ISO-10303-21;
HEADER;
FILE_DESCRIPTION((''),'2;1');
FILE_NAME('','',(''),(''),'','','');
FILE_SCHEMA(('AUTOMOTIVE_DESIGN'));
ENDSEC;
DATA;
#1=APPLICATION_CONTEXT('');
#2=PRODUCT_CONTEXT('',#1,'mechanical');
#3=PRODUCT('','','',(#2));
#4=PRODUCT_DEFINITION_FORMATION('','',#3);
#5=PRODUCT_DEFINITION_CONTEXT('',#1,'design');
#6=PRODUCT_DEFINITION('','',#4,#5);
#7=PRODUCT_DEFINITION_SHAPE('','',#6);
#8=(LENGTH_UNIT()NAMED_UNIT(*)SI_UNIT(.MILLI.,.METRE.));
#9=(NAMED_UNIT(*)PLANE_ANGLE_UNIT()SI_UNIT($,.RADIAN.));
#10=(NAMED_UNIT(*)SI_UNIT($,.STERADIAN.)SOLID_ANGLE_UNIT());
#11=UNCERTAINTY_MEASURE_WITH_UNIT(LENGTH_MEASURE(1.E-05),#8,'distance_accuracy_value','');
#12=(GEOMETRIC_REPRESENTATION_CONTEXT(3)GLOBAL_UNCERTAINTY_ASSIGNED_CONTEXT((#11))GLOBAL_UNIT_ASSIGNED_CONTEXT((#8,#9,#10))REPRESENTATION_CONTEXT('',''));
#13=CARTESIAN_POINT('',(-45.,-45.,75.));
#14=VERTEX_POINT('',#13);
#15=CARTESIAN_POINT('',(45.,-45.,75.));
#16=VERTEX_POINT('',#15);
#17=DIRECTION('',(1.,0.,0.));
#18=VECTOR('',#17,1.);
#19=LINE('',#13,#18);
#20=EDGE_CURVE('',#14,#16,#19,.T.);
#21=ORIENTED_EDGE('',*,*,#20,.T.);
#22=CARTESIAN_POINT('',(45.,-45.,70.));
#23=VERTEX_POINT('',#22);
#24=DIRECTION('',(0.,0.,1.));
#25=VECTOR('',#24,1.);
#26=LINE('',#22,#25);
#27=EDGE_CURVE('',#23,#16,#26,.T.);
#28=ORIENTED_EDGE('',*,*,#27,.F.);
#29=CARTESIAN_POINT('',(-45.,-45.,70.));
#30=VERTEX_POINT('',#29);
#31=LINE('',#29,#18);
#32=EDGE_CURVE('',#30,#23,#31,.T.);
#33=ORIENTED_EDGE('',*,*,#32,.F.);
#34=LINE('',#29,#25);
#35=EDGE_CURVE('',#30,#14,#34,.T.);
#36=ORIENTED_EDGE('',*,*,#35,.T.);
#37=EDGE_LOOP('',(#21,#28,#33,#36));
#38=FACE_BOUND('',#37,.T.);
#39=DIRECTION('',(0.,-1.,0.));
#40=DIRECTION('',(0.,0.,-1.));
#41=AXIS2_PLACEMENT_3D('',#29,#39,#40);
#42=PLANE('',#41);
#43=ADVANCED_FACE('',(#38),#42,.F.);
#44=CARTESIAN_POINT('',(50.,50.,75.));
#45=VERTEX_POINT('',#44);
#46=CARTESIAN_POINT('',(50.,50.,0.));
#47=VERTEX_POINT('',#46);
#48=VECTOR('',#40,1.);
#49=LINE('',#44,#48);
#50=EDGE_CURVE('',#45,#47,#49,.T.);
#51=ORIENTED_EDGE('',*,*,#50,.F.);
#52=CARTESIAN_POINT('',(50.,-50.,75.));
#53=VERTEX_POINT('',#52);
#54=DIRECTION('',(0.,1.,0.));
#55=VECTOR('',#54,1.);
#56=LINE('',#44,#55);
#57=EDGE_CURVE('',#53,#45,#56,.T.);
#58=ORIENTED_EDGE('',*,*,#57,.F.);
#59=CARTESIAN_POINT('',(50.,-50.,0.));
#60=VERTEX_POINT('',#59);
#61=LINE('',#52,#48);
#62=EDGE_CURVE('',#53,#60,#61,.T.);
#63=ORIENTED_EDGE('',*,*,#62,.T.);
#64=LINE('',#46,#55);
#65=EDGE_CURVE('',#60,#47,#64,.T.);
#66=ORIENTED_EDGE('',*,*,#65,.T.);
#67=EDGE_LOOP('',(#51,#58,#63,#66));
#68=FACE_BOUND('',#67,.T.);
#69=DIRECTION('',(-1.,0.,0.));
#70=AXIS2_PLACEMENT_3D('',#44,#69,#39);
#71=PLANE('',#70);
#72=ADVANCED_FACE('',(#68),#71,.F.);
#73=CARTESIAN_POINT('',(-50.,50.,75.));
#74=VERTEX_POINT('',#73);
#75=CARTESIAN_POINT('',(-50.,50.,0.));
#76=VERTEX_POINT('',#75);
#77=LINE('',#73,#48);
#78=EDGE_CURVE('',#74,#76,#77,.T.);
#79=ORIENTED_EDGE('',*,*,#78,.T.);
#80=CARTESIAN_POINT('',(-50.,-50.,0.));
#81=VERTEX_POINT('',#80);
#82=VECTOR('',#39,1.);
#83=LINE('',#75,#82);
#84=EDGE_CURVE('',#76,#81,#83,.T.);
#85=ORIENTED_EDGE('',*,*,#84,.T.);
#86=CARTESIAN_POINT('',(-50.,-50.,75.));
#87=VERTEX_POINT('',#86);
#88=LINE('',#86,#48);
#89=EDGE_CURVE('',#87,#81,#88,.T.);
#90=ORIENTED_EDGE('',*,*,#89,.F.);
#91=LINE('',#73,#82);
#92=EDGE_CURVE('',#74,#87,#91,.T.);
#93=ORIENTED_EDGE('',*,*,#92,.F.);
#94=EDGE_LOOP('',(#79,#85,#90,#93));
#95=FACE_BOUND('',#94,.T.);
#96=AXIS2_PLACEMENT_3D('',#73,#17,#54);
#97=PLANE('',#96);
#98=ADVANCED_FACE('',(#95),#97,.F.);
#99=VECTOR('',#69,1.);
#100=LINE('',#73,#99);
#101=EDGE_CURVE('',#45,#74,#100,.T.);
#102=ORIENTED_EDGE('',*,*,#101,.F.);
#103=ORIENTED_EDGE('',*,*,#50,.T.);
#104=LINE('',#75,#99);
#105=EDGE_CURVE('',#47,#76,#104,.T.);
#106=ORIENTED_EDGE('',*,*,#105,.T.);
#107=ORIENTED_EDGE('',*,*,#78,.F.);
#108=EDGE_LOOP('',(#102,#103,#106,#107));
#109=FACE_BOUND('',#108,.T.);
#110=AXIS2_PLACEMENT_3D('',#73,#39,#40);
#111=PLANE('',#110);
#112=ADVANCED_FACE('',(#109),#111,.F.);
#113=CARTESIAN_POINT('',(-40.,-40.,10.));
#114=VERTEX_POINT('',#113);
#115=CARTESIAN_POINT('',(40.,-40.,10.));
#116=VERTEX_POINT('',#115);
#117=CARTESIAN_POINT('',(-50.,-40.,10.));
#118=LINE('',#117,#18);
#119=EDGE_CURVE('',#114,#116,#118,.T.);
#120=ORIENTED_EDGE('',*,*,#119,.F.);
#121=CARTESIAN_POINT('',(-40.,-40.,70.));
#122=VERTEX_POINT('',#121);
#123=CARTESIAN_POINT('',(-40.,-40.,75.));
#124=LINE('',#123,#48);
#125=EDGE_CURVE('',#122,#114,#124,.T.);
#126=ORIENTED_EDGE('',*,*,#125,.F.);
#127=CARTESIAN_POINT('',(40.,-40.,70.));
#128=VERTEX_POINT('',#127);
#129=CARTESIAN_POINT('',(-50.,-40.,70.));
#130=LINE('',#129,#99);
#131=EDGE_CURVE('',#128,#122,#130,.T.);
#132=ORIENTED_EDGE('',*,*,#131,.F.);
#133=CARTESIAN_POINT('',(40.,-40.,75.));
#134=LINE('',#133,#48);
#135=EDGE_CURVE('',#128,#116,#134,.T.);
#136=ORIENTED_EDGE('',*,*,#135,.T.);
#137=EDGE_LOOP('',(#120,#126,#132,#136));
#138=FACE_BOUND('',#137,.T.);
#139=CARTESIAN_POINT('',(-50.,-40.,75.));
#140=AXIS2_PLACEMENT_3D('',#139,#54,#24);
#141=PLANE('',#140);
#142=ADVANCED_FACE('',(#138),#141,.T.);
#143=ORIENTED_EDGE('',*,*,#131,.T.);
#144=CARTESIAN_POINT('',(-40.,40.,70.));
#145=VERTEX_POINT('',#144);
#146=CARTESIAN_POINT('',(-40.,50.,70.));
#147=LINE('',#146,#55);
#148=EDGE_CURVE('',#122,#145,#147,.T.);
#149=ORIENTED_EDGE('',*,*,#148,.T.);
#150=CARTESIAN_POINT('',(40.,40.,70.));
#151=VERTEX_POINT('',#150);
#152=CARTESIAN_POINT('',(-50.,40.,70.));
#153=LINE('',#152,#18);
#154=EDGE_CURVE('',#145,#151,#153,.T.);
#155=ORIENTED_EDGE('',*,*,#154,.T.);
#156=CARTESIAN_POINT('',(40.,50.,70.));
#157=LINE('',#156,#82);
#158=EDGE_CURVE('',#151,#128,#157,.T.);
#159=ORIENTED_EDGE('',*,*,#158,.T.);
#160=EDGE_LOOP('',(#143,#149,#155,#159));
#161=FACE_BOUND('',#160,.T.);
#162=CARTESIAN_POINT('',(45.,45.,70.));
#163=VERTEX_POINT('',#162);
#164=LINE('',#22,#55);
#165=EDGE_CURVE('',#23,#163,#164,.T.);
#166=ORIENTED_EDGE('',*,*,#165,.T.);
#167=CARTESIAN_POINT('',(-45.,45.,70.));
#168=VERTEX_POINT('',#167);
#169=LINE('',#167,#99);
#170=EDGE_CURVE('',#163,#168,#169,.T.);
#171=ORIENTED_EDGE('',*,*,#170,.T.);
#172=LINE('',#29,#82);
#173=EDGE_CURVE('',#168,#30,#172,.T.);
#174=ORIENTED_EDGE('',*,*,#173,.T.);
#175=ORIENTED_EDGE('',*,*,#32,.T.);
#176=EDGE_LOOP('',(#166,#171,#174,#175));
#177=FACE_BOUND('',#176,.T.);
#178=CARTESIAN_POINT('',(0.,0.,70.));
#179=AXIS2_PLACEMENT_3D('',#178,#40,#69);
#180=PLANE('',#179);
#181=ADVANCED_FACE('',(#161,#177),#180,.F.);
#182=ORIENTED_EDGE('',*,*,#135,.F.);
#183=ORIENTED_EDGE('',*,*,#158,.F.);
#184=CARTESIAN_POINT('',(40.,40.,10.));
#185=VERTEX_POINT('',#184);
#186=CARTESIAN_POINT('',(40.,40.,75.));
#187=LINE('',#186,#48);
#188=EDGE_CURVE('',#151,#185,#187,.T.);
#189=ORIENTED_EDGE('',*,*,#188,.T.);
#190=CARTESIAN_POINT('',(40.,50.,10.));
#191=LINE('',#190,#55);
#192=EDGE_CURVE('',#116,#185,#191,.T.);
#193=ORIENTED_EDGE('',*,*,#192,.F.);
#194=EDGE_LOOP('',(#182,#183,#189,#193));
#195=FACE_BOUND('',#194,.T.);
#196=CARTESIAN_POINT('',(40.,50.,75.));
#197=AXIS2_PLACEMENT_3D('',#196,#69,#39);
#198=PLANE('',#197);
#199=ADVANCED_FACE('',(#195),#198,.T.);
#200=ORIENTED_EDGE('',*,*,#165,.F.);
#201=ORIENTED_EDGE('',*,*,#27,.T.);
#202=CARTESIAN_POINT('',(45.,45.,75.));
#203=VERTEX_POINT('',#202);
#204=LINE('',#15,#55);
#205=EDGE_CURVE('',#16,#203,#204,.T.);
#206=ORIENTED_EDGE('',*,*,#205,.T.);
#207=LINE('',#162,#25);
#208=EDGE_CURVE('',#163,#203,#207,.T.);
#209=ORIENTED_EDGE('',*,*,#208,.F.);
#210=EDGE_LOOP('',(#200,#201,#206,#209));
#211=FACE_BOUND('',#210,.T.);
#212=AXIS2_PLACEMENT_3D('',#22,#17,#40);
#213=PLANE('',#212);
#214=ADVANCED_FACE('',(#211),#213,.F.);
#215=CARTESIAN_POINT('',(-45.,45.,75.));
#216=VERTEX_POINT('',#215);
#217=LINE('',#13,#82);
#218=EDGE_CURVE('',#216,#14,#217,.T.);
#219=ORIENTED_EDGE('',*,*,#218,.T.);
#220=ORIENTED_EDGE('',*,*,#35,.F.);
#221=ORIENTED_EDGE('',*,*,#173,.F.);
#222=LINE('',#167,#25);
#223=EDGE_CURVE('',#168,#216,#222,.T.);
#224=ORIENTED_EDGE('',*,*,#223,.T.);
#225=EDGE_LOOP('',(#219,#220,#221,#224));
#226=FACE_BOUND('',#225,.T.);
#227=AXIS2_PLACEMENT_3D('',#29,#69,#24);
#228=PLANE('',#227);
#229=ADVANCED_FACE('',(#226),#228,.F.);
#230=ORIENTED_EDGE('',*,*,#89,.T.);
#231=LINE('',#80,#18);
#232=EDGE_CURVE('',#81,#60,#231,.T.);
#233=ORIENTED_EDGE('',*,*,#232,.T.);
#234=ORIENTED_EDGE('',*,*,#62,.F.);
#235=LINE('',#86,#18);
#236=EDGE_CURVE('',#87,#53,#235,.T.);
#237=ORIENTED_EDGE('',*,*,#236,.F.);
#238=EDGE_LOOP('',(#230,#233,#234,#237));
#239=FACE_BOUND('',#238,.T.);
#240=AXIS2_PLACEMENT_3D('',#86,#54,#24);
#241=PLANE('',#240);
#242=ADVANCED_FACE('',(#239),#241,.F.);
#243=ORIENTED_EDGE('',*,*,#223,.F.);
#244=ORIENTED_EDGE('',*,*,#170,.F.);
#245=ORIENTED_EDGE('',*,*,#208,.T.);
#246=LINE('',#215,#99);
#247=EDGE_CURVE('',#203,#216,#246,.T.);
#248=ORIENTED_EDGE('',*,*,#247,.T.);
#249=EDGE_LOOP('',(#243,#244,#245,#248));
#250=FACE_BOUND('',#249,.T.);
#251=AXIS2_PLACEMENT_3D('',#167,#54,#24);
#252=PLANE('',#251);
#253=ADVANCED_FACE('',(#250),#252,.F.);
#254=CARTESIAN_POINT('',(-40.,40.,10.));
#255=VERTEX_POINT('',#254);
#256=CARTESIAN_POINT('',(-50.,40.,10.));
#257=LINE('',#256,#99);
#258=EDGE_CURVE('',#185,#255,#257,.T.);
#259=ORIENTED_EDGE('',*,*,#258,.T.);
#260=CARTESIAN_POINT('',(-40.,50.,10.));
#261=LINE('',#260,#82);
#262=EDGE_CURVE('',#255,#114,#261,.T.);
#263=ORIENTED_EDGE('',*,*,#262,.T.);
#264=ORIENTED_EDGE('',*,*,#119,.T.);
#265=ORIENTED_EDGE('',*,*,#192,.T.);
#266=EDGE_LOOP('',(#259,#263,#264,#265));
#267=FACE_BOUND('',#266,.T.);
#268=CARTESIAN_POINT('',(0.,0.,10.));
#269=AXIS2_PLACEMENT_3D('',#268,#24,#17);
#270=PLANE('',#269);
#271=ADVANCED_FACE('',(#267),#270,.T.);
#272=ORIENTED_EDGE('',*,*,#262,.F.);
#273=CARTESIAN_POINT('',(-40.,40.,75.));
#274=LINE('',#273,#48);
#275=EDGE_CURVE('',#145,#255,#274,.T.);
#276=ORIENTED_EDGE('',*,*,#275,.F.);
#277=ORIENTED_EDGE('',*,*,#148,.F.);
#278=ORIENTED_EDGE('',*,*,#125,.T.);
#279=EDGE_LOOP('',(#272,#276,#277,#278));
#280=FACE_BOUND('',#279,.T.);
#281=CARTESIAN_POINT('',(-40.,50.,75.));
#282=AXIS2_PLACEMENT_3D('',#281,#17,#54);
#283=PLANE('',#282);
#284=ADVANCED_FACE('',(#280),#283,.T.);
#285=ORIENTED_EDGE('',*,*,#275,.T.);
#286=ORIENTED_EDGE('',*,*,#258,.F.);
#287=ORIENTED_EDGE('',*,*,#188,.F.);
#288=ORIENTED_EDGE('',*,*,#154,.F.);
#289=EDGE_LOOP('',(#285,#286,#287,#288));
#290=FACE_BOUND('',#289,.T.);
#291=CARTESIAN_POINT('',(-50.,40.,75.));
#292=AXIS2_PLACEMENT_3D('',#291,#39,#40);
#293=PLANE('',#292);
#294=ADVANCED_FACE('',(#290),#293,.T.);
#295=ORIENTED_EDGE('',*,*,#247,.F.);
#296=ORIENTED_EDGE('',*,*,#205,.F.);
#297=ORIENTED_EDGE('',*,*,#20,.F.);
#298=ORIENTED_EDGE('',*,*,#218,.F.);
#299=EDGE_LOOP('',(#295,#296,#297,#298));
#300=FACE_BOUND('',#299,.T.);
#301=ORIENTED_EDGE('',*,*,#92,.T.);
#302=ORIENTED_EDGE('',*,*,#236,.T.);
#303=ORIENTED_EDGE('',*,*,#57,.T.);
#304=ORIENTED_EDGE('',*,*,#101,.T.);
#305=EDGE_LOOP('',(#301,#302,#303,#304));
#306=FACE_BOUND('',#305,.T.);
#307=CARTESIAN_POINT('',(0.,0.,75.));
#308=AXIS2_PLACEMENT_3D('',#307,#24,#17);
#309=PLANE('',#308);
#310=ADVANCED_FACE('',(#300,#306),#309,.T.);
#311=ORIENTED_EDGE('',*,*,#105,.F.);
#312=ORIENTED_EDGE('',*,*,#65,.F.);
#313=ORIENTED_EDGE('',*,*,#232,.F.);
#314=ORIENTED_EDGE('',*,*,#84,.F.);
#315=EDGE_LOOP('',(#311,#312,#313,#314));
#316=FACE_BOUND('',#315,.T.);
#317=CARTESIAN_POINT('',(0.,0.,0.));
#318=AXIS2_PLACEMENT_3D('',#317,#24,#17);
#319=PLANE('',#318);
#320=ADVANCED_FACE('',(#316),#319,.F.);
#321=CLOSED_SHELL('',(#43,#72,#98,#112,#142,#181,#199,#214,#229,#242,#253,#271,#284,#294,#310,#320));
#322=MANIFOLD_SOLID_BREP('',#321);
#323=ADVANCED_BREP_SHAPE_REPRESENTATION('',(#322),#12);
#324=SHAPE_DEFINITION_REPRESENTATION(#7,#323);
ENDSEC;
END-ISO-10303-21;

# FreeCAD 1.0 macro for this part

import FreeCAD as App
import Part
import Sketcher


def faces_at(feature, points):
    """Names of the faces that lie closest to the given points."""
    faces = feature.Shape.Faces
    near = lambda p: min(range(len(faces)), key=lambda i: faces[i].distToShape(Part.Vertex(*p))[0])
    return sorted({f"Face{near(p) + 1}" for p in points})

doc = App.newDocument("Part")
body = doc.addObject("PartDesign::Body", "Body")

sketch1 = body.newObject("Sketcher::SketchObject", "Sketch")
sketch1.AttachmentSupport = (doc.getObject("XY_Plane"), [""])
sketch1.MapMode = "FlatFace"
sketch1.addGeometry([
    Part.LineSegment(App.Vector(-50, 50, 0), App.Vector(-50, -50, 0)),
    Part.LineSegment(App.Vector(-50, -50, 0), App.Vector(50, -50, 0)),
    Part.LineSegment(App.Vector(50, -50, 0), App.Vector(50, 50, 0)),
    Part.LineSegment(App.Vector(50, 50, 0), App.Vector(-50, 50, 0)),
], False)
sketch1.addConstraint([
    Sketcher.Constraint("Coincident", 0, 2, 1, 1),
    Sketcher.Constraint("Coincident", 1, 2, 2, 1),
    Sketcher.Constraint("Coincident", 2, 2, 3, 1),
    Sketcher.Constraint("Coincident", 3, 2, 0, 1),
    Sketcher.Constraint("Vertical", 0),
    Sketcher.Constraint("Horizontal", 1),
    Sketcher.Constraint("Vertical", 2),
    Sketcher.Constraint("Horizontal", 3),
    Sketcher.Constraint("Symmetric", 0, 2, 2, 2, -1, 1),
    Sketcher.Constraint("Equal", 3, 0),
    Sketcher.Constraint("DistanceX", 1, 1, 1, 2, 100.0),
])
pad1 = body.newObject("PartDesign::Pad", "Pad")
pad1.Profile = sketch1
pad1.Length = 75
doc.recompute()

thickness = body.newObject("PartDesign::Thickness", "Thickness")
thickness.Base = (pad1, faces_at(pad1, [(0, 0, 75)]))
thickness.Value = 10
thickness.Reversed = True
thickness.Join = "Intersection"

sketch2 = body.newObject("Sketcher::SketchObject", "Sketch001")
sketch2.AttachmentSupport = (doc.getObject("XY_Plane"), [""])
sketch2.MapMode = "FlatFace"
sketch2.AttachmentOffset = App.Placement(App.Vector(0, 0, 75), App.Rotation())
sketch2.addGeometry([
    Part.LineSegment(App.Vector(-45, 45, 0), App.Vector(-45, -45, 0)),
    Part.LineSegment(App.Vector(-45, -45, 0), App.Vector(45, -45, 0)),
    Part.LineSegment(App.Vector(45, -45, 0), App.Vector(45, 45, 0)),
    Part.LineSegment(App.Vector(45, 45, 0), App.Vector(-45, 45, 0)),
], False)
sketch2.addConstraint([
    Sketcher.Constraint("Coincident", 0, 2, 1, 1),
    Sketcher.Constraint("Coincident", 1, 2, 2, 1),
    Sketcher.Constraint("Coincident", 2, 2, 3, 1),
    Sketcher.Constraint("Coincident", 3, 2, 0, 1),
    Sketcher.Constraint("Vertical", 0),
    Sketcher.Constraint("Horizontal", 1),
    Sketcher.Constraint("Vertical", 2),
    Sketcher.Constraint("Horizontal", 3),
    Sketcher.Constraint("Symmetric", 0, 2, 2, 2, -1, 1),
    Sketcher.Constraint("Equal", 3, 0),
    Sketcher.Constraint("DistanceX", 1, 1, 1, 2, 90.0),
])
pocket1 = body.newObject("PartDesign::Pocket", "Pocket")
pocket1.Profile = sketch2
pocket1.Length = 5

doc.recompute()
